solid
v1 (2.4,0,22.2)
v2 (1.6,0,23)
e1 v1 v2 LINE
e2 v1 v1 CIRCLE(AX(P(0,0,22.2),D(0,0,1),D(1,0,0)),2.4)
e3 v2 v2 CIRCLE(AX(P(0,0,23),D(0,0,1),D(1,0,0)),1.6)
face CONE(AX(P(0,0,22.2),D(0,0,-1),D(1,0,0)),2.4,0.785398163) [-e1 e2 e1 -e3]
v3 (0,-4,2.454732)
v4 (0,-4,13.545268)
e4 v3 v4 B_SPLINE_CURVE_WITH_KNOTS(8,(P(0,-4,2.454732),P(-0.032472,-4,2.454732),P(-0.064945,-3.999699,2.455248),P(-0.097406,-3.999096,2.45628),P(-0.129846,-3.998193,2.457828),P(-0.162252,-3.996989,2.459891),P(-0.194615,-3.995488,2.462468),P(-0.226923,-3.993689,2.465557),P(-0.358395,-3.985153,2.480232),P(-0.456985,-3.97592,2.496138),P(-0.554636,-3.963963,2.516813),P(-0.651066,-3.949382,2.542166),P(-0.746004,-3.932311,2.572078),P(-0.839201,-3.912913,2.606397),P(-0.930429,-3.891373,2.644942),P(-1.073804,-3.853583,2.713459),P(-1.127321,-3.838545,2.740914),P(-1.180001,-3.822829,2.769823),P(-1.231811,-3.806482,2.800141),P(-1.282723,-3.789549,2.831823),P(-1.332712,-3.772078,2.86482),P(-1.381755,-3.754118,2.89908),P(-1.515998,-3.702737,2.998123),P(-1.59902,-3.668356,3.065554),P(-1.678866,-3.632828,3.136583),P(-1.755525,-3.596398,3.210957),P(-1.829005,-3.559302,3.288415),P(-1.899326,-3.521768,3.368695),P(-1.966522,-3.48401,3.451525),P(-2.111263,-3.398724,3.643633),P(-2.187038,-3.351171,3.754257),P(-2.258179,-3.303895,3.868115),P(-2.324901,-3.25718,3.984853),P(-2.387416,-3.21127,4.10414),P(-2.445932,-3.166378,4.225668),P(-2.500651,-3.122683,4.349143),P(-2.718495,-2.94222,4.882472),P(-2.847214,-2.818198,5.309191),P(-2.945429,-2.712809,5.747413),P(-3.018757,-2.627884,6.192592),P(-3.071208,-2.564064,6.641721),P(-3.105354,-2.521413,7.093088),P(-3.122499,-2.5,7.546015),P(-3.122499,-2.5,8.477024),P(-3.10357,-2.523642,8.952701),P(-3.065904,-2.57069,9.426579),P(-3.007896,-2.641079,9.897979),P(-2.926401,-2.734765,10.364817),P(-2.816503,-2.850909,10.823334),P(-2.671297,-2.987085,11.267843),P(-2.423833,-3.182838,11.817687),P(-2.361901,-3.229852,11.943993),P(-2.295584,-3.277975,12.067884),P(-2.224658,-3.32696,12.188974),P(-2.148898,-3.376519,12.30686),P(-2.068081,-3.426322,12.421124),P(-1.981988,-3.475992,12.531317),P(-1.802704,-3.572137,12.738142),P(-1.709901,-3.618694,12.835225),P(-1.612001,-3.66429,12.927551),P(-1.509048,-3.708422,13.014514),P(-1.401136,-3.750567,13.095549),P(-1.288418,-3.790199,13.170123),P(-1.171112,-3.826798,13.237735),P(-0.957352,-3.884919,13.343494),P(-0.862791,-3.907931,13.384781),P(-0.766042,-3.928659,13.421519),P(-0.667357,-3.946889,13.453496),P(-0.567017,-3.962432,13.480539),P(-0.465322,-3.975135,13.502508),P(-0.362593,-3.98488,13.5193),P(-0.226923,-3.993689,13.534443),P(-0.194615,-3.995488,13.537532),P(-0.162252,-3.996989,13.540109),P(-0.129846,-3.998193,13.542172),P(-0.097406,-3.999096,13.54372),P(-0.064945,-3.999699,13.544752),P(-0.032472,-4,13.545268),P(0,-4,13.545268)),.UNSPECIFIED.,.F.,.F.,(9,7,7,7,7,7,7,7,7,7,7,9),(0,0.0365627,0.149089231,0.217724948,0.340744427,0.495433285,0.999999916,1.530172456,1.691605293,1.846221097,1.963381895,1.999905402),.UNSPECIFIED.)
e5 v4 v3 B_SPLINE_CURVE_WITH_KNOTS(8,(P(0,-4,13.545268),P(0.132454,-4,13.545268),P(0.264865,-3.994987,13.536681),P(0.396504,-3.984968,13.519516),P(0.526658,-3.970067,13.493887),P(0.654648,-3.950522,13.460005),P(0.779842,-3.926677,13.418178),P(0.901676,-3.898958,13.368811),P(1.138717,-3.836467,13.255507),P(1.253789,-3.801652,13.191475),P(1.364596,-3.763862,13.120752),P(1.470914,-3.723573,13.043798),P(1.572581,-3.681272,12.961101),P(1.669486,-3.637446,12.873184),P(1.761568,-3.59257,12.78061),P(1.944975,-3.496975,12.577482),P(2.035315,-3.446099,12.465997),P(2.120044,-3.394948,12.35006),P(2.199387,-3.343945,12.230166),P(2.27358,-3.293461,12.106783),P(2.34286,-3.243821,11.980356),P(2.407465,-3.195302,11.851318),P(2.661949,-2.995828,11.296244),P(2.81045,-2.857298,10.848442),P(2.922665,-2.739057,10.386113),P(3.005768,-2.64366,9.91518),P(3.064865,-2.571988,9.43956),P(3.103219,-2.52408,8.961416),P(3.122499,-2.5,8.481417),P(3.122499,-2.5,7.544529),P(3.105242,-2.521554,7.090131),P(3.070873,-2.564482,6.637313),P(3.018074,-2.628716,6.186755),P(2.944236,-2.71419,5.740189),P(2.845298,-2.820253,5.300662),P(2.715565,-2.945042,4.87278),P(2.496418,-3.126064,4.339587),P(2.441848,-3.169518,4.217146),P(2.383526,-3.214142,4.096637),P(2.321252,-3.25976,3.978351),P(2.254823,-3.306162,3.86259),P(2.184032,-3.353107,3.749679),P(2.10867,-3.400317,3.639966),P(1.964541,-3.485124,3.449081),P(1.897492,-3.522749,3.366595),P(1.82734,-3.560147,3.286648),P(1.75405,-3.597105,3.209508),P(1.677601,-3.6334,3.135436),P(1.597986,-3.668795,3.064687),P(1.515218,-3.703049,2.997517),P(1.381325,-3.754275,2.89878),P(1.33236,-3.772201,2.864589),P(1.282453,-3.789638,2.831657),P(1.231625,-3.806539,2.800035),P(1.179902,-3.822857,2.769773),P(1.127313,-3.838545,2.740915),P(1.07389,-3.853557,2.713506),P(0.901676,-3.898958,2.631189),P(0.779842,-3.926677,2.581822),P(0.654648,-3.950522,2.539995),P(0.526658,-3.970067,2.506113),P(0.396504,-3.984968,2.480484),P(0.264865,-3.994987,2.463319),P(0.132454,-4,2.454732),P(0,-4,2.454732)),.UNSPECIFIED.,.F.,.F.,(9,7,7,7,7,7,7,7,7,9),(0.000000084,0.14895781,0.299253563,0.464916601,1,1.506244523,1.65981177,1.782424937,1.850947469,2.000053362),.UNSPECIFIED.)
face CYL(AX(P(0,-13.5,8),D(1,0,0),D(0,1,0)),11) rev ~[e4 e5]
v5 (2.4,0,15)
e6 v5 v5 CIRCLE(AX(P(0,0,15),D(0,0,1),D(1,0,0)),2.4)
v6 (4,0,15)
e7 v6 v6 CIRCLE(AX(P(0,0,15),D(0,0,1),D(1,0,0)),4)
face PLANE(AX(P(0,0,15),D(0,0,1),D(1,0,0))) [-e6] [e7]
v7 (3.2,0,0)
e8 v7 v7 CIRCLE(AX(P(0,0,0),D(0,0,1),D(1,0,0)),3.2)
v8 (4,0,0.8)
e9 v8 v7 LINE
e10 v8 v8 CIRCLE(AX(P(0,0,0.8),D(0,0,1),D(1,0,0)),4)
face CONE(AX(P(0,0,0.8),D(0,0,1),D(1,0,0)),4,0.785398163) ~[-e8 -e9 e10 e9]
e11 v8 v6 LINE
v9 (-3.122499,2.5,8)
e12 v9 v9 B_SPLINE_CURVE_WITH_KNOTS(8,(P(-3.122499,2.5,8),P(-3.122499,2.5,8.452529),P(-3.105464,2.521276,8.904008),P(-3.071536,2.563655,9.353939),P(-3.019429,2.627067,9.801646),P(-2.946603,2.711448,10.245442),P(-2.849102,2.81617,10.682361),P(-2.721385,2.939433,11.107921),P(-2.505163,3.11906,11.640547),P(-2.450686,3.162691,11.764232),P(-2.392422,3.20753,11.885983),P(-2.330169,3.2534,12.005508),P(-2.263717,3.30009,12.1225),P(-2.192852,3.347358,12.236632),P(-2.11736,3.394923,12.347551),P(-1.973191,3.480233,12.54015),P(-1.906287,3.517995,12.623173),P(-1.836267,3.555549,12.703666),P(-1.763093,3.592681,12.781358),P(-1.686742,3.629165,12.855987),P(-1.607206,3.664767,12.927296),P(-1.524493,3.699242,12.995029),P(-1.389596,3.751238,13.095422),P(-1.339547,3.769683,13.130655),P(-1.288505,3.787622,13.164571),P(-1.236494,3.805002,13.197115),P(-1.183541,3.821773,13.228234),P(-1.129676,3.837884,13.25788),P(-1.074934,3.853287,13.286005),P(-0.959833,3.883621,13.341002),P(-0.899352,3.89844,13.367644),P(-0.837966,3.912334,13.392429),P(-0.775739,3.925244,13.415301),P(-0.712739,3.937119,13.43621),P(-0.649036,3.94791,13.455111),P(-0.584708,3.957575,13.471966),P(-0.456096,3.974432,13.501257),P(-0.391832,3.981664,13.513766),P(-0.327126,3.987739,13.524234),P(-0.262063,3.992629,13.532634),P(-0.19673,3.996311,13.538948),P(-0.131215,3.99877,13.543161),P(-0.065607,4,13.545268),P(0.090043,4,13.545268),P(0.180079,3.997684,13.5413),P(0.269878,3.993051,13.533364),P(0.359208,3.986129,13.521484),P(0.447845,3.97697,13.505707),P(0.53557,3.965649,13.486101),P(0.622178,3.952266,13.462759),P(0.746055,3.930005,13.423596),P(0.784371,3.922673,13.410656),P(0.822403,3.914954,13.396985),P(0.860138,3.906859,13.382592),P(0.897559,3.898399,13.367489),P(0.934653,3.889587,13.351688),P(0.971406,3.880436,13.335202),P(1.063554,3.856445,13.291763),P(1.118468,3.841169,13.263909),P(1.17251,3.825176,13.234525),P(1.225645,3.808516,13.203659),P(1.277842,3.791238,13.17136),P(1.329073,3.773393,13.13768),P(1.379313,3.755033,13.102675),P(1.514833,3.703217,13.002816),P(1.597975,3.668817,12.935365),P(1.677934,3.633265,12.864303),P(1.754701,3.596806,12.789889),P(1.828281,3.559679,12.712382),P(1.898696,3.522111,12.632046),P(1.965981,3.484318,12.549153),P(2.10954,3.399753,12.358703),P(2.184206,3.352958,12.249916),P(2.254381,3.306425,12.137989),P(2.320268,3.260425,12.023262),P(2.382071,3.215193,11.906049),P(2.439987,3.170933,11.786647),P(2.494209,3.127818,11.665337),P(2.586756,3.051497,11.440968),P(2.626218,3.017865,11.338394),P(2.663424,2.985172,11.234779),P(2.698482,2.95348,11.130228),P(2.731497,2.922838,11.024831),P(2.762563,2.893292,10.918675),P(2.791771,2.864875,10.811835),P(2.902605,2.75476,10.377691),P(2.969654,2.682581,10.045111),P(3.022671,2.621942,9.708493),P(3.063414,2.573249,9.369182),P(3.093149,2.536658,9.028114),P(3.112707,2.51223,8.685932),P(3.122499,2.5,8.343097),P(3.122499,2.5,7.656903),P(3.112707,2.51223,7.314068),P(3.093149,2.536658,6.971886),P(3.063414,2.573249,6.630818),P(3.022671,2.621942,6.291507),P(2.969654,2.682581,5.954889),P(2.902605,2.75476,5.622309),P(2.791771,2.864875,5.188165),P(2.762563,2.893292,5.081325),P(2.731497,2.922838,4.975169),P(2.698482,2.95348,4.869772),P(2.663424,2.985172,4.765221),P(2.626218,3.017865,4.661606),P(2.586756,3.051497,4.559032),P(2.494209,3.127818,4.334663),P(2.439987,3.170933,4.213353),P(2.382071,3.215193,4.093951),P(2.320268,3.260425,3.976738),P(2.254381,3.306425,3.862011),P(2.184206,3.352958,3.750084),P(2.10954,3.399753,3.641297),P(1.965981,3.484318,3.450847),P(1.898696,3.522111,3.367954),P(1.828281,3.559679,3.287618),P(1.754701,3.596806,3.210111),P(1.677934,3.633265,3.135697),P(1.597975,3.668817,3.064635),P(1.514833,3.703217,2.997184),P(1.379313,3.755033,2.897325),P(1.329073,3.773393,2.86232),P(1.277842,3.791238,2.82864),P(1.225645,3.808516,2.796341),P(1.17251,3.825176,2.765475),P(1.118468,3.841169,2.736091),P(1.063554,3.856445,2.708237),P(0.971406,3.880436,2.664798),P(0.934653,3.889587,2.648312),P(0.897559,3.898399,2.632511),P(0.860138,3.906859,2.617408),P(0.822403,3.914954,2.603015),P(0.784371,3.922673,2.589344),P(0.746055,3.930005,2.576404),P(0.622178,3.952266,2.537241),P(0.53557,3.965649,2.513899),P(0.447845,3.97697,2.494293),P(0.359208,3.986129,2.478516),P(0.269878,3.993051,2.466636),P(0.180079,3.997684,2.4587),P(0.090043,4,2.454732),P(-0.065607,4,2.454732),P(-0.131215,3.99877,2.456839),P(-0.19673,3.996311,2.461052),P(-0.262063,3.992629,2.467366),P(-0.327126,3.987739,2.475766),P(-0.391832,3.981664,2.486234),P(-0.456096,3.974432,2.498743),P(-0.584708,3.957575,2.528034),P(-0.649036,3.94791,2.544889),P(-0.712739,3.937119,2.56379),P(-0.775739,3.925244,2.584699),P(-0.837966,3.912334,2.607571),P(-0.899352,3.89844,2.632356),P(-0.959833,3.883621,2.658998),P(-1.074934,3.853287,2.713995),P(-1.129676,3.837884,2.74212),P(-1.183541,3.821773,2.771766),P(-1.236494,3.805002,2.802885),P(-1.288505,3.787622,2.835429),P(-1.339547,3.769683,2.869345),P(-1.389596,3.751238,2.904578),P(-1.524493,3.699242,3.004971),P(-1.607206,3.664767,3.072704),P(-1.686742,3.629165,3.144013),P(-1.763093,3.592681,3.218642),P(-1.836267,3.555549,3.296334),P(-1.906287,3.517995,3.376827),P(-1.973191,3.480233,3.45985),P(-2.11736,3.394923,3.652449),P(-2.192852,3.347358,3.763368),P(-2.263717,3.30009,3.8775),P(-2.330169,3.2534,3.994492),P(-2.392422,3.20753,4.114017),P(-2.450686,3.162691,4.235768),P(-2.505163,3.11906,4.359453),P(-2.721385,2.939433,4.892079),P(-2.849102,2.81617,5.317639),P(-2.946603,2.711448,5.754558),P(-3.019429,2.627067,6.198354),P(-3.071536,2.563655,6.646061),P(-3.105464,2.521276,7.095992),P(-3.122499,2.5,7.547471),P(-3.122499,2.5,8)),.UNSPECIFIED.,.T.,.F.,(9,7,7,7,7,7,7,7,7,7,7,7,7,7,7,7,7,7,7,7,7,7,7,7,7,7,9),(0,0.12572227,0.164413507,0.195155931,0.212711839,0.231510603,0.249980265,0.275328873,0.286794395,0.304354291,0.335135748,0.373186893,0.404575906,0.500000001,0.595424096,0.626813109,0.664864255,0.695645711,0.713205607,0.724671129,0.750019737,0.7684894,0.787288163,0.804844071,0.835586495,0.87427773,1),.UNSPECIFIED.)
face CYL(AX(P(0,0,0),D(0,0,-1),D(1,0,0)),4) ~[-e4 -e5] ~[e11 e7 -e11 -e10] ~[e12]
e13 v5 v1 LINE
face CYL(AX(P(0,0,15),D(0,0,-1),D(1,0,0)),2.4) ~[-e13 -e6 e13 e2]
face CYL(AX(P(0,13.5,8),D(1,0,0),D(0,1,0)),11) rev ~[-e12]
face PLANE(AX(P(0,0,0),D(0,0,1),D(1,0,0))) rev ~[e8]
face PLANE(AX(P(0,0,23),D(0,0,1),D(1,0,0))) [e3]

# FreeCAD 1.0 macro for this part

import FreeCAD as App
import Part
import Sketcher
Q = App.Units.Quantity


def edges_at(feature, points):
    """Names of the edges that pass closest to the given points."""
    edges = feature.Shape.Edges
    near = lambda p: min(range(len(edges)), key=lambda i: edges[i].distToShape(Part.Vertex(*p))[0])
    return sorted({f"Edge{near(p) + 1}" for p in points})

doc = App.newDocument("Part")
body = doc.addObject("PartDesign::Body", "Body")

# Sketch on XY plane
sketch1 = doc.addObject("Sketcher::SketchObject", "Sketch")
body.addObject(sketch1)
sketch1.AttachmentSupport = (doc.XY_Plane, [""])
sketch1.MapMode = "FlatFace"
sketch1.addGeometry(Part.Circle(App.Vector(0, 0, 0), App.Vector(0, 0, 1), 4), False)
sketch1.addConstraint([
    Sketcher.Constraint("Coincident", 0, 3, -1, 1),
    Sketcher.Constraint("Diameter", 0, Q("8 mm")),
])
pad1 = doc.addObject("PartDesign::Pad", "Pad")
body.addObject(pad1)
pad1.Profile = sketch1
pad1.Length = 15

# Sketch on XY plane
sketch2 = doc.addObject("Sketcher::SketchObject", "Sketch001")
body.addObject(sketch2)
sketch2.AttachmentSupport = (doc.XY_Plane, [""])
sketch2.MapMode = "FlatFace"
sketch2.AttachmentOffset = App.Placement(App.Vector(0, 0, 15), App.Rotation())
sketch2.addGeometry(Part.Circle(App.Vector(0, 0, 0), App.Vector(0, 0, 1), 2.4), False)
sketch2.addConstraint([
    Sketcher.Constraint("Coincident", 0, 3, -1, 1),
    Sketcher.Constraint("Diameter", 0, Q("4.8 mm")),
])
pad2 = doc.addObject("PartDesign::Pad", "Pad001")
body.addObject(pad2)
pad2.Profile = sketch2
pad2.Length = 8
doc.recompute()

chamfer = doc.addObject("PartDesign::Chamfer", "Chamfer")
body.addObject(chamfer)
chamfer.Base = (pad2, edges_at(pad2, [(-2.4, 0, 23), (-4, 0, 0)]))
chamfer.Size = 0.8

# Sketch on YZ plane
sketch3 = doc.addObject("Sketcher::SketchObject", "Sketch002")
body.addObject(sketch3)
sketch3.AttachmentSupport = (doc.YZ_Plane, [""])
sketch3.MapMode = "FlatFace"
sketch3.addGeometry([
    Part.Circle(App.Vector(-14, 8, 0), App.Vector(0, 0, 1), 11),
    Part.Circle(App.Vector(14, 8, 0), App.Vector(0, 0, 1), 11),
], False)
sketch3.addConstraint([
    Sketcher.Constraint("Equal", 0, 1),
    Sketcher.Constraint("Symmetric", 0, 3, 1, 3, -2),
    Sketcher.Constraint("Diameter", 0, Q("22 mm")),
    Sketcher.Constraint("DistanceY", -1, 1, 0, 3, Q("8 mm")),
    Sketcher.Constraint("DistanceX", 0, 3, 1, 3, Q("27 mm")),
])
pocket1 = doc.addObject("PartDesign::Pocket", "Pocket")
body.addObject(pocket1)
pocket1.Profile = sketch3
pocket1.Length = 10
pocket1.Midplane = True

doc.recompute()
